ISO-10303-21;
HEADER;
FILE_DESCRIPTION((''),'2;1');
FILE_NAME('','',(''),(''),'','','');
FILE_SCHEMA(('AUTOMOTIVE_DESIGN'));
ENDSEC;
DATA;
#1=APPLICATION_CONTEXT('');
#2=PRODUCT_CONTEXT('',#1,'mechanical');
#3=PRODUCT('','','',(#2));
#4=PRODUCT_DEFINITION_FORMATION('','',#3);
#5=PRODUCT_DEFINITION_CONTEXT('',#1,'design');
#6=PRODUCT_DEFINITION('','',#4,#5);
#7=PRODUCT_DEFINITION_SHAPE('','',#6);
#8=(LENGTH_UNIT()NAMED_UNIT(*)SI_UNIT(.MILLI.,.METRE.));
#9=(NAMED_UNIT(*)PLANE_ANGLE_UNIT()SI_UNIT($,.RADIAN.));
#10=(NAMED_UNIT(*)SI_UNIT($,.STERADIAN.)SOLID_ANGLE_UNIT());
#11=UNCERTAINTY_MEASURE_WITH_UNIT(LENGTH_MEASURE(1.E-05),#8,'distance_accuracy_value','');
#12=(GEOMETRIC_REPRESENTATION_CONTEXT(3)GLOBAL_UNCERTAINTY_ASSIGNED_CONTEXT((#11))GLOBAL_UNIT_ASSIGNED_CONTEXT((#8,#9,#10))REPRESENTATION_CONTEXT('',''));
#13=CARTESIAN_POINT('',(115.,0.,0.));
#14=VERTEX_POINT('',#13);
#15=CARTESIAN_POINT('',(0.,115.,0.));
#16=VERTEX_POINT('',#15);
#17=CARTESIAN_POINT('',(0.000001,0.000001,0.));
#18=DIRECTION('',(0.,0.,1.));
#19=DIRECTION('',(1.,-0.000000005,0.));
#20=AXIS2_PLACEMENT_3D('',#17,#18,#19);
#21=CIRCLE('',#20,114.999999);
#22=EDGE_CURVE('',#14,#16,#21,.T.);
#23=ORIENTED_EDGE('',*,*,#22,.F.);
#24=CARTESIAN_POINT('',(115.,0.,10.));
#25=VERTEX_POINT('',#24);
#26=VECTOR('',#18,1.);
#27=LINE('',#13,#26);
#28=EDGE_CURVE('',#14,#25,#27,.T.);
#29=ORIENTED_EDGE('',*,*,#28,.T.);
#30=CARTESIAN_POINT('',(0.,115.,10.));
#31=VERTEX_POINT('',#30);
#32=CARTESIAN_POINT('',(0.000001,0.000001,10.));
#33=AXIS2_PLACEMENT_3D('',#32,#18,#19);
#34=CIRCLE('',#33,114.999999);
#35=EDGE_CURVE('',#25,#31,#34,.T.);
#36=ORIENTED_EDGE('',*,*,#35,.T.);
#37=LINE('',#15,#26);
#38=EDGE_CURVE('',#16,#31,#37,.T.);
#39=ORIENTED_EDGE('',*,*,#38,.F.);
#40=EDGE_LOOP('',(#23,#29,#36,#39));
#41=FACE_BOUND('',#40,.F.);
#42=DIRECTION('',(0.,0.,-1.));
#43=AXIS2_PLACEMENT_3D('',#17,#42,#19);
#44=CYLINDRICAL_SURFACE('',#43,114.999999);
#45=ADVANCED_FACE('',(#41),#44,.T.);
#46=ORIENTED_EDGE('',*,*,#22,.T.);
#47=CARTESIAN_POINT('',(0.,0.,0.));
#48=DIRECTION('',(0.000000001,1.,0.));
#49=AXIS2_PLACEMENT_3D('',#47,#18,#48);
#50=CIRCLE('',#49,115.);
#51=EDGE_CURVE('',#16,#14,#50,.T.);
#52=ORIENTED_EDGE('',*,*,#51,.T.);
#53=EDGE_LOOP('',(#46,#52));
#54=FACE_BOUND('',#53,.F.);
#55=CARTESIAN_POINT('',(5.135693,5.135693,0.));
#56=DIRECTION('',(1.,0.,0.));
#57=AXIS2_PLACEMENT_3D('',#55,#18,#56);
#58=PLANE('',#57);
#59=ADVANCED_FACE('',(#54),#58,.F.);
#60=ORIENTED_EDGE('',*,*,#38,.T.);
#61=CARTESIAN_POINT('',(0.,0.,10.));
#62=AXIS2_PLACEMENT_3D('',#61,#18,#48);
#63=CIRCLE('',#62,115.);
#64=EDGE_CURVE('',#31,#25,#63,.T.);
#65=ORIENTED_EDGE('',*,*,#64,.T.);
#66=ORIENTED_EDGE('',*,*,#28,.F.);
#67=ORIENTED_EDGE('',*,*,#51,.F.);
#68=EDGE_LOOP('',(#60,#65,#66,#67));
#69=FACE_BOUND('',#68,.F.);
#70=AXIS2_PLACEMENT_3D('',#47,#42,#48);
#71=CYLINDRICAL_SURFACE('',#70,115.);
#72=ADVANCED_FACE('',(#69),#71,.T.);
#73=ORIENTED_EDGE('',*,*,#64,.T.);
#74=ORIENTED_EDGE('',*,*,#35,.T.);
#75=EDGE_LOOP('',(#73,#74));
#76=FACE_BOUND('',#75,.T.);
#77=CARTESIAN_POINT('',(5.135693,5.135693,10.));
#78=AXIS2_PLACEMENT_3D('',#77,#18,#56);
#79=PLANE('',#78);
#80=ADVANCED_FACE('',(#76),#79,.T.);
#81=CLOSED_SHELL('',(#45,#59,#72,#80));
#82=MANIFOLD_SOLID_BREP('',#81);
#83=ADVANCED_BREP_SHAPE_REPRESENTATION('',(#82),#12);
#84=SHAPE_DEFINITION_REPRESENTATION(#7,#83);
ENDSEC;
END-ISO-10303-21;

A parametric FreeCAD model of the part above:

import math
import FreeCAD as App
import Part
import Sketcher

V = App.Vector
Q = App.Units.Quantity

doc = App.newDocument("Part")
body = doc.addObject("PartDesign::Body", "Body")

# Sketch on XY plane
sketch1 = body.newObject("Sketcher::SketchObject", "Sketch")
sketch1.AttachmentSupport = (doc.getObject("XY_Plane"), [""])
sketch1.MapMode = "FlatFace"
sketch1.addGeometry([
    Part.ArcOfCircle(Part.Circle(V(0, 0, 0), V(0, 0, 1), 115), math.radians(0), math.radians(90)),
    Part.ArcOfCircle(Part.Circle(V(0, 0, 0), V(0, 0, 1), 115), math.radians(90), math.radians(360)),
], False)
sketch1.addConstraint([
    Sketcher.Constraint("Tangent", 0, 1, 1, 2),
    Sketcher.Constraint("Coincident", 1, 1, 0, 2),
    Sketcher.Constraint("Coincident", 0, 3, -1, 1),
    Sketcher.Constraint("PointOnObject", 0, 1, -1),
    Sketcher.Constraint("PointOnObject", 1, 1, -2),
    Sketcher.Constraint("Radius", 0, Q("114.999999 mm")),
])
pad1 = body.newObject("PartDesign::Pad", "Pad")
pad1.Profile = sketch1
pad1.Length = 10

doc.recompute()
